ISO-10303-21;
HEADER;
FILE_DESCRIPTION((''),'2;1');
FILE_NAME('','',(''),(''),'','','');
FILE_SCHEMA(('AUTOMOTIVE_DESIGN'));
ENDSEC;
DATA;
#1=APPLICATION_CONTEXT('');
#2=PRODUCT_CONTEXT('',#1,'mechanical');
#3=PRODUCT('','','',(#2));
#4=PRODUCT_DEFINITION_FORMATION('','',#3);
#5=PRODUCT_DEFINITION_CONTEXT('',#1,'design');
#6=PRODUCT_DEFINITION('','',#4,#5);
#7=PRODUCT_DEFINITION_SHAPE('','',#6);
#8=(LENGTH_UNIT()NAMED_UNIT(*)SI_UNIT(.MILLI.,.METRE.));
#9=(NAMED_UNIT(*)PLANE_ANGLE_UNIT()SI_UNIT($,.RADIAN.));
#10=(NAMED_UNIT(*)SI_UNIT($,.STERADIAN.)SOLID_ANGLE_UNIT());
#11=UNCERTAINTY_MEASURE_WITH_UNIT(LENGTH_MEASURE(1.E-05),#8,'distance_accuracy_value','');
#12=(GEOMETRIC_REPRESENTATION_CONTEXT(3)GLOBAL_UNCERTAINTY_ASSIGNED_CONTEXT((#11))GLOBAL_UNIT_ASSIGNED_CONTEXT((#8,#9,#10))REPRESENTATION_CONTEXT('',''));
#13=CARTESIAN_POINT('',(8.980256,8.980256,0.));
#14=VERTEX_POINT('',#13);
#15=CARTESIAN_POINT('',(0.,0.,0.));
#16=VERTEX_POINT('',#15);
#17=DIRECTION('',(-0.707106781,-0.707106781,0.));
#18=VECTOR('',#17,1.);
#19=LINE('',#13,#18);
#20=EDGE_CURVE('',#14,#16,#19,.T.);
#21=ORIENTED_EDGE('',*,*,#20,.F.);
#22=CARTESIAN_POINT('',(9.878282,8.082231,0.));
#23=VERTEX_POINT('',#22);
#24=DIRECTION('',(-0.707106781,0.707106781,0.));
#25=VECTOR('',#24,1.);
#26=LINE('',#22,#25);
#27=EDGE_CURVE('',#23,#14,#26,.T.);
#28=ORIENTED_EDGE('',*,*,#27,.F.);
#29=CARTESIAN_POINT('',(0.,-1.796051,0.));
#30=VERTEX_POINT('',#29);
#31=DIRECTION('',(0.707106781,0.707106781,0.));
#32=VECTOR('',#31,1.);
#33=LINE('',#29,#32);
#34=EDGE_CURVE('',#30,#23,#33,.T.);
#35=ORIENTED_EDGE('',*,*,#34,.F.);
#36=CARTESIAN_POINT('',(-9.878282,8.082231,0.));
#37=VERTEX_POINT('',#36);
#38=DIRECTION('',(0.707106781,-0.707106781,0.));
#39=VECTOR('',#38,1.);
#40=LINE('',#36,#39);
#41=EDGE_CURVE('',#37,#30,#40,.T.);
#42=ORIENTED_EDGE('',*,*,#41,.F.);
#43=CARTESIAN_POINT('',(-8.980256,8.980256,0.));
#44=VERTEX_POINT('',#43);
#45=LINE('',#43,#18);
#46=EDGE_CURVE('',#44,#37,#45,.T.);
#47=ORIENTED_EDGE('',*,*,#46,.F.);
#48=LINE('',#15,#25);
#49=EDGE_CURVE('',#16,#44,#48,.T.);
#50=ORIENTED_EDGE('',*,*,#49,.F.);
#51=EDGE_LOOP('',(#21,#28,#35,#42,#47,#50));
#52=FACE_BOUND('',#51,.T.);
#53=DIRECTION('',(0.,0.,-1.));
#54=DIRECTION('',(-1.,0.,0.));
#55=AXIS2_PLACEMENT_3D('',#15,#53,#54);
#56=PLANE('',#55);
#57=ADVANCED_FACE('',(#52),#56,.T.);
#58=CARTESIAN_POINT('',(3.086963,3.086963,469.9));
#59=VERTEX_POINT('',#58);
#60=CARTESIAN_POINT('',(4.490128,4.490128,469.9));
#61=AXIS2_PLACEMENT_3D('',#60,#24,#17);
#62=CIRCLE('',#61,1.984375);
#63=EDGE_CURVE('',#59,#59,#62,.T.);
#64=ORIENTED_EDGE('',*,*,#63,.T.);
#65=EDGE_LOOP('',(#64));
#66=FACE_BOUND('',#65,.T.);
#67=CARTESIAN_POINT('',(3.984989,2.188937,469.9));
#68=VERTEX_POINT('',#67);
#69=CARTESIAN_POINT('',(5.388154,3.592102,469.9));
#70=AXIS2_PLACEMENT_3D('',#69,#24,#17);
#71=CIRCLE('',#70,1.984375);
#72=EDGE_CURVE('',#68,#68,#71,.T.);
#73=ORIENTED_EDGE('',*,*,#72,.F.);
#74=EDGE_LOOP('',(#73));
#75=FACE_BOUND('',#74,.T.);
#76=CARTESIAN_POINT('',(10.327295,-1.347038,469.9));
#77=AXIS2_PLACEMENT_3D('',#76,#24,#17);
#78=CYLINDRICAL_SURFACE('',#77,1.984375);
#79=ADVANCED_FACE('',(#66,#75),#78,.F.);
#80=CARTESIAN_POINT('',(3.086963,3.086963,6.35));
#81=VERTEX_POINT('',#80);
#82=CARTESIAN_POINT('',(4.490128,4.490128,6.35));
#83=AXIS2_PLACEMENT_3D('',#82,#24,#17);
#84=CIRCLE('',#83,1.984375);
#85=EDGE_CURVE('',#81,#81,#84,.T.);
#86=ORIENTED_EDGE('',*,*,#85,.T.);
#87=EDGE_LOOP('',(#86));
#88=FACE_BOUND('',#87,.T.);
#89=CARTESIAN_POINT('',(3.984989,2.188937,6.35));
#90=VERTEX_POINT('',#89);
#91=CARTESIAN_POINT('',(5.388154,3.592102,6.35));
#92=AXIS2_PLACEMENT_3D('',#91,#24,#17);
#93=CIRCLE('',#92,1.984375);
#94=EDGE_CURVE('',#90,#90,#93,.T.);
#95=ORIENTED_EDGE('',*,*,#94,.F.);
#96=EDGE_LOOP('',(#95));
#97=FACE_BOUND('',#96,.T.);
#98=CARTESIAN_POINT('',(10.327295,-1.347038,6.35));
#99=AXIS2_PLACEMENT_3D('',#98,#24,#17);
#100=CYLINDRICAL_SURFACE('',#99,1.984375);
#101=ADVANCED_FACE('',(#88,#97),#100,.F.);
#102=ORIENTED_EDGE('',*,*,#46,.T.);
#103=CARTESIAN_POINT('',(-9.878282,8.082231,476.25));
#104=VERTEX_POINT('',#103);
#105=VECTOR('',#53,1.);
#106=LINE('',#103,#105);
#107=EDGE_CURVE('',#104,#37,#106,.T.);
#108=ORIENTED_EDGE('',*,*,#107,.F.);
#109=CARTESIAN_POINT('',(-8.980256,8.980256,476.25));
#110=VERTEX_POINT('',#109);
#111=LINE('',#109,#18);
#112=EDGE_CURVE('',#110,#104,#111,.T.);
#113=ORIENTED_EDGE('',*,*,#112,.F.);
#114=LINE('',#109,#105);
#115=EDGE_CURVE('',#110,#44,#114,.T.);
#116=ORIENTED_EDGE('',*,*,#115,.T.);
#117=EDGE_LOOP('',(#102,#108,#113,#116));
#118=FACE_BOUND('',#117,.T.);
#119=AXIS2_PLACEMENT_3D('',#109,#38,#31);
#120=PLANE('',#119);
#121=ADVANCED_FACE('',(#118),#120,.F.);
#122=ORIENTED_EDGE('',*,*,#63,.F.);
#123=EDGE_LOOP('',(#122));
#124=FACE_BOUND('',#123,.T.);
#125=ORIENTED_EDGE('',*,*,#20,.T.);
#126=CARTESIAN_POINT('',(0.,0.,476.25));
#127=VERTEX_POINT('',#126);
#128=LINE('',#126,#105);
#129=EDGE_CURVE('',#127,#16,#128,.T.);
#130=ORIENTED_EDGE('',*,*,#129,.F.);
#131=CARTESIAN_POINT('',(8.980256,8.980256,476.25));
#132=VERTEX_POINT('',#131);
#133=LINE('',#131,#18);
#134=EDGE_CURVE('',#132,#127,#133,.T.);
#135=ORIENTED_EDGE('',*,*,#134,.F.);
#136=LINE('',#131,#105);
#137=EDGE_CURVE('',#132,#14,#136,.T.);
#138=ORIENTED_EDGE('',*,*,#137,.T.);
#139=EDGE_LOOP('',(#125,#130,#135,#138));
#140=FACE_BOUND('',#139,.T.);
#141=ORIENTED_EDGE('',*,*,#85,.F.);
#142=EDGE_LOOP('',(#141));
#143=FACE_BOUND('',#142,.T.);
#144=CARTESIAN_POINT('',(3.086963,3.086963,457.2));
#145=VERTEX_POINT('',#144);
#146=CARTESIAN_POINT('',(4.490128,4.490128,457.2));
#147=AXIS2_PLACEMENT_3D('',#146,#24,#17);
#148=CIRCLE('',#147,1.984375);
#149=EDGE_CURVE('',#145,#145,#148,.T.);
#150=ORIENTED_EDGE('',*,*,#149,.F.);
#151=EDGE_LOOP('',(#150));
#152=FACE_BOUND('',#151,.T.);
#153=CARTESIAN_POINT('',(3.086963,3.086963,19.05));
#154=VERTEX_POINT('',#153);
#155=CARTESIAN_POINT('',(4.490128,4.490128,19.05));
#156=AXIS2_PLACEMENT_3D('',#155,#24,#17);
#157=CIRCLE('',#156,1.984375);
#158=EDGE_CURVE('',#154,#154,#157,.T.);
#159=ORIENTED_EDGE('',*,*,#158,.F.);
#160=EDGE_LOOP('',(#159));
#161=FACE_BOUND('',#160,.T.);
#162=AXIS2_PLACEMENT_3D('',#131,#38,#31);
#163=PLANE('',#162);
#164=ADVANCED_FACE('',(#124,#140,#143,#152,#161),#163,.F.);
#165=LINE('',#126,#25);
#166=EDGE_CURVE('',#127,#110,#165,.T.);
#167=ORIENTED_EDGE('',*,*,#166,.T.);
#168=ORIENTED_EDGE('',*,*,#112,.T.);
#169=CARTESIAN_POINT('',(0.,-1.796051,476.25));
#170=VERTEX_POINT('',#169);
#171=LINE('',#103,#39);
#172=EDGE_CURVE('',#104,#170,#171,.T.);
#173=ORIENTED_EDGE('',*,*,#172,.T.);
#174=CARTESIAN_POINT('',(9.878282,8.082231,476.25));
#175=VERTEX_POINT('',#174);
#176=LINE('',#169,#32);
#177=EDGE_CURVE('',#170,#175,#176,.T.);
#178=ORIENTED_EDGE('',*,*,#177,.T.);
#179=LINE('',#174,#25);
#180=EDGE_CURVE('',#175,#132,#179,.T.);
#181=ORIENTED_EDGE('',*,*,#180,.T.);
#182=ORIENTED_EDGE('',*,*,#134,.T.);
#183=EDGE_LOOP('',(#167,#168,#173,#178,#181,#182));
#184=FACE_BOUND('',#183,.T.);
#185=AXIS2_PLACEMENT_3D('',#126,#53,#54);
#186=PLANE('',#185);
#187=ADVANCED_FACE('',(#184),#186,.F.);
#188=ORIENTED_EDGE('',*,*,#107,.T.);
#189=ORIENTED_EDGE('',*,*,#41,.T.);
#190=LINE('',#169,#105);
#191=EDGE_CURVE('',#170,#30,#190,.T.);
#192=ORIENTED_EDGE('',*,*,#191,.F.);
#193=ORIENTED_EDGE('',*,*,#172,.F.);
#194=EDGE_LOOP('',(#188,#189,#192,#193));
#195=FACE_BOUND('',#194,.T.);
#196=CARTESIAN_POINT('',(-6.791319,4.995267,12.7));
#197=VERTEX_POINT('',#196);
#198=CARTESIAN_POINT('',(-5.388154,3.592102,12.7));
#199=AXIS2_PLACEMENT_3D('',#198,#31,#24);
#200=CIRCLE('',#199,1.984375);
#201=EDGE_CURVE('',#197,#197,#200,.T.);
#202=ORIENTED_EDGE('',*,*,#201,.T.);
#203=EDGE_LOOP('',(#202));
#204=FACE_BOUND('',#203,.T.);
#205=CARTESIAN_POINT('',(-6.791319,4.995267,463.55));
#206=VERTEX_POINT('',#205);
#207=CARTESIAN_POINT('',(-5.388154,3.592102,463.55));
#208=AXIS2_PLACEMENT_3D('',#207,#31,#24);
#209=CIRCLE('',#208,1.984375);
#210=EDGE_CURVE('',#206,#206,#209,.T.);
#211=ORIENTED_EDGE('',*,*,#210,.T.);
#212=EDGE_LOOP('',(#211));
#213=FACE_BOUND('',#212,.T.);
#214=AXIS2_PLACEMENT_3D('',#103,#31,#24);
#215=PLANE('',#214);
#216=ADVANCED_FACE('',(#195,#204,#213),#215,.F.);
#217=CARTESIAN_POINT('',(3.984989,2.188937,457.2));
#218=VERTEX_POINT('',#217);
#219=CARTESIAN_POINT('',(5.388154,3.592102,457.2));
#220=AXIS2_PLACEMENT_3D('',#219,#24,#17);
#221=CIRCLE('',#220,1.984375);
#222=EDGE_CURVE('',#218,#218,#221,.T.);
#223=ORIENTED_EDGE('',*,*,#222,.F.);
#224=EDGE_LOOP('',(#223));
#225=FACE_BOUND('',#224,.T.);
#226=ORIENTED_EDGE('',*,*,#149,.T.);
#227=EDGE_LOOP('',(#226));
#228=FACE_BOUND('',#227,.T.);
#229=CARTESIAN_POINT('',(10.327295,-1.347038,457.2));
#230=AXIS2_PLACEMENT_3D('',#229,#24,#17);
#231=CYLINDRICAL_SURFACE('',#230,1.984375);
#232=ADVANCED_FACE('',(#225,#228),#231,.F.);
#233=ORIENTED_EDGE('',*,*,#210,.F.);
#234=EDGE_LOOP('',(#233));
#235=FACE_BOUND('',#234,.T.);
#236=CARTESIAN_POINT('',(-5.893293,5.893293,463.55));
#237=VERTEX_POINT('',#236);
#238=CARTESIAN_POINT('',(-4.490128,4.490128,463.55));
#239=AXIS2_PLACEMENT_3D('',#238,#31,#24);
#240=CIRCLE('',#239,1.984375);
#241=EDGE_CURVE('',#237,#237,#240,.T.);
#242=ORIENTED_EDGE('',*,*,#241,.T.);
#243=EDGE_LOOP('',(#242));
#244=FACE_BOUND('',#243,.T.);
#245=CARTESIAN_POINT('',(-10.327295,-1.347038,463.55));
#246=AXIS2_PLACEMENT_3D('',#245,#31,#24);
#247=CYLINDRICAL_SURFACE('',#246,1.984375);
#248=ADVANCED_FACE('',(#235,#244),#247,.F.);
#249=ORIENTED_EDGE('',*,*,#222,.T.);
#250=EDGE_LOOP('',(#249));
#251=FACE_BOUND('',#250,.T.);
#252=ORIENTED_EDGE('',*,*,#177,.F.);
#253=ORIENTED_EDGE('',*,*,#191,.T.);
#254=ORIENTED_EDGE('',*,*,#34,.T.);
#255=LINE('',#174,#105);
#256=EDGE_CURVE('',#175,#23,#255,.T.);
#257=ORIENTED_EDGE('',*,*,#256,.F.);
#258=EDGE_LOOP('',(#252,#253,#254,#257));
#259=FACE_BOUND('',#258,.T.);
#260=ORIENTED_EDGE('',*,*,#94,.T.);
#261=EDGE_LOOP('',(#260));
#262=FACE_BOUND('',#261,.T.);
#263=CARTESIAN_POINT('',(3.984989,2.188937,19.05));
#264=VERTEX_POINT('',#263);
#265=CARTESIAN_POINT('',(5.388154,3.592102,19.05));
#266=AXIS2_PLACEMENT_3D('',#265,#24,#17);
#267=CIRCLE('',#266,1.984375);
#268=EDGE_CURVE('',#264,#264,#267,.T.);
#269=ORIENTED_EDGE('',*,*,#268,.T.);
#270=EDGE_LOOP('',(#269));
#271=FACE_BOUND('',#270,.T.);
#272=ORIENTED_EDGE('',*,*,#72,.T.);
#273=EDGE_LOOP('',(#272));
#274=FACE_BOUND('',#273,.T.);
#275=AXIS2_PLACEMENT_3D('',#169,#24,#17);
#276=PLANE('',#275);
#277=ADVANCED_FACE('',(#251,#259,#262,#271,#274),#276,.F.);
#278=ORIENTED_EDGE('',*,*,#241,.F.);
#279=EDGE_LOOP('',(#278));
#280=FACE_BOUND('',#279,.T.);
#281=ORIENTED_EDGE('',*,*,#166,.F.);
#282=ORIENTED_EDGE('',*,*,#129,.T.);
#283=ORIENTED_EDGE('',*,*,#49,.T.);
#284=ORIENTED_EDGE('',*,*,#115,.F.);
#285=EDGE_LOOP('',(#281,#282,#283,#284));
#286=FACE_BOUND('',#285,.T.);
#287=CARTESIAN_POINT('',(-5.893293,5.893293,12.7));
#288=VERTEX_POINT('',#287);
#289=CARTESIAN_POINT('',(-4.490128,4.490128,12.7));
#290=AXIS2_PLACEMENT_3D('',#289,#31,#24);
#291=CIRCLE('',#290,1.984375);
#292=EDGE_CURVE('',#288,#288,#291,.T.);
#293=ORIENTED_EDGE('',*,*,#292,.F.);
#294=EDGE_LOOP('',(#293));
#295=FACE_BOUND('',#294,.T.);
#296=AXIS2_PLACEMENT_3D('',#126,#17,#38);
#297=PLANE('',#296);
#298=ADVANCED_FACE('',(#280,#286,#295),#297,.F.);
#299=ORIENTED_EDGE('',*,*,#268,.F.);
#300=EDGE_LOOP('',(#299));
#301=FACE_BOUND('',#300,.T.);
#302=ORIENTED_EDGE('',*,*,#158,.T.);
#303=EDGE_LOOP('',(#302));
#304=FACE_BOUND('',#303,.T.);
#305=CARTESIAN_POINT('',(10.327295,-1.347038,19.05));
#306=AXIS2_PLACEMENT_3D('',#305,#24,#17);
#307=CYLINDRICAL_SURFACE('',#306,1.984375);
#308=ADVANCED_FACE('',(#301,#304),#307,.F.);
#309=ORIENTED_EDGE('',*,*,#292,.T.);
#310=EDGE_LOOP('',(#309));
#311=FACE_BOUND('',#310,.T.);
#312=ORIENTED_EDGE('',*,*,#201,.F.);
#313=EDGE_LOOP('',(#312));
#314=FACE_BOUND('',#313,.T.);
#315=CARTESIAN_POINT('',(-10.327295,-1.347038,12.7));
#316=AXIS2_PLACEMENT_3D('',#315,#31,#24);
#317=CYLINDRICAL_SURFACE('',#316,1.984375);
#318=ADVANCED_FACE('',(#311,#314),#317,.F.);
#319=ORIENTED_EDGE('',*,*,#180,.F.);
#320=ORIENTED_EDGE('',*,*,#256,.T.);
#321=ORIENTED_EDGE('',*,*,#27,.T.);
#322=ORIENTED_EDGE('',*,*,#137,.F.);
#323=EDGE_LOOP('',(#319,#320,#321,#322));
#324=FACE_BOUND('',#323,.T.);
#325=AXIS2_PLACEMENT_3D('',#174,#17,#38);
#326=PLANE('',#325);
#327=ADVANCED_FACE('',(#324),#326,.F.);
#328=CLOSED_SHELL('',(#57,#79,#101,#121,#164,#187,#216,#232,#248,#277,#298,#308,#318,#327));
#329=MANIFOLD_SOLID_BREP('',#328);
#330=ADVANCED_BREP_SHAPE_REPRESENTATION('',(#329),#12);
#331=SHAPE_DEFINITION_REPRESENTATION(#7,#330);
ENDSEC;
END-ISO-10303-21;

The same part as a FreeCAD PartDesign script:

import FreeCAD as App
import Part
import Sketcher

V = App.Vector
Q = App.Units.Quantity


def add_polygon(sketch, points):
    """Adds a closed chain of lines whose ends are joined by coincident constraints."""
    first, n = sketch.GeometryCount, len(points)
    for a, b in zip(points, points[1:] + points[:1]):
        sketch.addGeometry(Part.LineSegment(App.Vector(*a, 0), App.Vector(*b, 0)), False)
    for i in range(n):
        sketch.addConstraint(Sketcher.Constraint("Coincident", first + i, 2, first + (i + 1) % n, 1))

doc = App.newDocument("Part")
params = doc.addObject("Spreadsheet::Sheet", "Params")
for row, (alias, value) in enumerate([
    ("sketch1_length", "0.5 in"),
    ("sketch1_length2", "0.05 in"),
    ("pad1_length", "18.75 in"),
    ("sketch2_diameter", "0.15625 in"),
    ("sketch3_diameter", "0.15625 in"),
    ("sketch4_diameter", "0.15625 in"),
    ("sketch5_diameter", "0.15625 in"),
], start=1):
    params.set(f"A{row}", alias)
    params.set(f"B{row}", "=" + value)
    params.setAlias(f"B{row}", alias)

body = doc.addObject("PartDesign::Body", "Body")

sketch1 = body.newObject("Sketcher::SketchObject", "Sketch")
sketch1.AttachmentSupport = (doc.getObject("XY_Plane"), [""])
sketch1.MapMode = "FlatFace"
add_polygon(sketch1, [(0, 0), (-9, 9), (-9.9, 8.1), (0, -1.8), (9.9, 8.1), (9, 9)])
sketch1.addConstraint([
    Sketcher.Constraint("Coincident", 5, 2, -1, 1),
    Sketcher.Constraint("Symmetric", 1, 2, 3, 2, -2),
    Sketcher.Constraint("Symmetric", 0, 2, 4, 2, -2),
    Sketcher.Constraint("PointOnObject", 2, 2, -2),
    Sketcher.Constraint("Perpendicular", 0, 1),
    Sketcher.Constraint("Perpendicular", 1, 2),
    Sketcher.Constraint("Perpendicular", 2, 3),
    Sketcher.Constraint("Distance", 0, Q("0.5 in")),
    Sketcher.Constraint("Distance", 1, Q("0.05 in")),
])
sketch1.setExpression("Constraints[13]", "Params.sketch1_length")
sketch1.setExpression("Constraints[14]", "Params.sketch1_length2")
pad1 = body.newObject("PartDesign::Pad", "Pad")
pad1.Profile = sketch1
pad1.setExpression("Length", "Params.pad1_length")

sketch2 = body.newObject("Sketcher::SketchObject", "Sketch001")
sketch2.Placement = App.Placement(V(0, 0, 0), App.Rotation(V(0, 0, 1), V(0.707106781, 0.707106781, 0), V(-0.707106781, 0.707106781, 0), "ZXY"))
sketch2.addGeometry([
    Part.Circle(V(469.9, 6.3, 0), V(0, 0, 1), 2),
    Part.Circle(V(457.2, 6.3, 0), V(0, 0, 1), 2),
], False)
sketch2.addConstraint([
    Sketcher.Constraint("Equal", 0, 1),
    Sketcher.Constraint("Horizontal", 0, 3, 1, 3),
    Sketcher.Constraint("Diameter", 0, Q("0.15625 in")),
    Sketcher.Constraint("DistanceX", -1, 1, 1, 3, Q("18 in")),
    Sketcher.Constraint("DistanceX", -1, 1, 0, 3, Q("18.5 in")),
    Sketcher.Constraint("DistanceY", -1, 1, 0, 3, Q("0.25 in")),
])
sketch2.setExpression("Constraints[2]", "Params.sketch2_diameter")
pocket1 = body.newObject("PartDesign::Pocket", "Pocket")
pocket1.Profile = sketch2
pocket1.Type = "ThroughAll"

sketch3 = body.newObject("Sketcher::SketchObject", "Sketch002")
sketch3.Placement = App.Placement(V(0, 0, 0), App.Rotation(V(0, 0, -1), V(-0.707106781, 0.707106781, 0), V(0.707106781, 0.707106781, 0), "ZXY"))
sketch3.addGeometry(Part.Circle(V(-463.6, 6.3, 0), V(0, 0, 1), 2), False)
sketch3.addConstraint([
    Sketcher.Constraint("Diameter", 0, Q("0.15625 in")),
    Sketcher.Constraint("DistanceX", 0, 3, -1, 1, Q("18.25 in")),
    Sketcher.Constraint("DistanceY", -1, 1, 0, 3, Q("0.25 in")),
])
sketch3.setExpression("Constraints[0]", "Params.sketch3_diameter")
pocket2 = body.newObject("PartDesign::Pocket", "Pocket001")
pocket2.Profile = sketch3
pocket2.Type = "ThroughAll"

sketch4 = body.newObject("Sketcher::SketchObject", "Sketch003")
sketch4.Placement = App.Placement(V(0, 0, 0), App.Rotation(V(0, 0, 1), V(0.707106781, 0.707106781, 0), V(-0.707106781, 0.707106781, 0), "ZXY"))
sketch4.addGeometry([
    Part.Circle(V(6.3, 6.3, 0), V(0, 0, 1), 2),
    Part.Circle(V(19.1, 6.3, 0), V(0, 0, 1), 2),
], False)
sketch4.addConstraint([
    Sketcher.Constraint("Equal", 0, 1),
    Sketcher.Constraint("Horizontal", 0, 3, 1, 3),
    Sketcher.Constraint("Diameter", 0, Q("0.15625 in")),
    Sketcher.Constraint("DistanceX", 0, 3, 1, 3, Q("0.5 in")),
    Sketcher.Constraint("DistanceX", -1, 1, 0, 3, Q("0.25 in")),
    Sketcher.Constraint("DistanceY", -1, 1, 0, 3, Q("0.25 in")),
])
sketch4.setExpression("Constraints[2]", "Params.sketch4_diameter")
pocket3 = body.newObject("PartDesign::Pocket", "Pocket002")
pocket3.Profile = sketch4
pocket3.Type = "ThroughAll"

sketch5 = body.newObject("Sketcher::SketchObject", "Sketch004")
sketch5.Placement = App.Placement(V(0, 0, 0), App.Rotation(V(0, 0, -1), V(-0.707106781, 0.707106781, 0), V(0.707106781, 0.707106781, 0), "ZXY"))
sketch5.addGeometry(Part.Circle(V(-12.7, 6.3, 0), V(0, 0, 1), 2), False)
sketch5.addConstraint([
    Sketcher.Constraint("Diameter", 0, Q("0.15625 in")),
    Sketcher.Constraint("DistanceX", 0, 3, -1, 1, Q("0.5 in")),
    Sketcher.Constraint("DistanceY", -1, 1, 0, 3, Q("0.25 in")),
])
sketch5.setExpression("Constraints[0]", "Params.sketch5_diameter")
pocket4 = body.newObject("PartDesign::Pocket", "Pocket003")
pocket4.Profile = sketch5
pocket4.Type = "ThroughAll"

doc.recompute()
